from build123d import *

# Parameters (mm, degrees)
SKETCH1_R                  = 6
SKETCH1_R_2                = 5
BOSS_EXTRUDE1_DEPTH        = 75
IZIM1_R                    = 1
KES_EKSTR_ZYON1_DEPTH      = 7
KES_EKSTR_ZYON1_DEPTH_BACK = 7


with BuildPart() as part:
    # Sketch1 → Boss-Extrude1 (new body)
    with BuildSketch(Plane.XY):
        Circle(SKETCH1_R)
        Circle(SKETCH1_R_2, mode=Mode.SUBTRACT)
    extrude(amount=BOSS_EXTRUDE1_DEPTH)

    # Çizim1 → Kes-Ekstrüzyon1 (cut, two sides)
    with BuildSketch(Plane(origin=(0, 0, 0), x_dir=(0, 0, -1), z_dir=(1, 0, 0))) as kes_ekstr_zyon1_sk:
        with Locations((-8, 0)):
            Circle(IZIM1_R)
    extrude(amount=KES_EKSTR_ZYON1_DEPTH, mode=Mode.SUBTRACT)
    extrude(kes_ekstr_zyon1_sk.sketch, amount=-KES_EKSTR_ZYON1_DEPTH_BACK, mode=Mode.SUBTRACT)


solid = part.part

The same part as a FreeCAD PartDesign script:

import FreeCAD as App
import Part
import Sketcher

doc = App.newDocument("Part")
params = doc.addObject("Spreadsheet::Sheet", "Params")
for row, (alias, value) in enumerate([
    ("sketch1_diameter", "12 mm"),
    ("sketch1_diameter2", "10 mm"),
    ("pad1_length", "75 mm"),
    ("sketch2_diameter", "2 mm"),
], start=1):
    params.set(f"A{row}", alias)
    params.set(f"B{row}", "=" + value)
    params.setAlias(f"B{row}", alias)

body = doc.addObject("PartDesign::Body", "Body")

sketch1 = body.newObject("Sketcher::SketchObject", "Sketch")
sketch1.AttachmentSupport = (doc.getObject("XY_Plane"), [""])
sketch1.MapMode = "FlatFace"
sketch1.addGeometry([
    Part.Circle(App.Vector(0, 0, 0), App.Vector(0, 0, 1), 6),
    Part.Circle(App.Vector(0, 0, 0), App.Vector(0, 0, 1), 5),
], False)
sketch1.addConstraint([
    Sketcher.Constraint("Coincident", 0, 3, -1, 1),
    Sketcher.Constraint("Coincident", 1, 3, -1, 1),
    Sketcher.Constraint("Diameter", 0, 12.0),
    Sketcher.Constraint("Diameter", 1, 10.0),
])
sketch1.setExpression("Constraints[2]", "Params.sketch1_diameter")
sketch1.setExpression("Constraints[3]", "Params.sketch1_diameter2")
pad1 = body.newObject("PartDesign::Pad", "Pad")
pad1.Profile = sketch1
pad1.setExpression("Length", "Params.pad1_length")

sketch2 = body.newObject("Sketcher::SketchObject", "Sketch001")
sketch2.AttachmentSupport = (doc.getObject("YZ_Plane"), [""])
sketch2.MapMode = "FlatFace"
sketch2.addGeometry(Part.Circle(App.Vector(0, 8, 0), App.Vector(0, 0, 1), 1), False)
sketch2.addConstraint([
    Sketcher.Constraint("PointOnObject", 0, 3, -2),
    Sketcher.Constraint("Diameter", 0, 2.0),
    Sketcher.Constraint("DistanceY", -1, 1, 0, 3, 8.0),
])
sketch2.setExpression("Constraints[1]", "Params.sketch2_diameter")
pocket1 = body.newObject("PartDesign::Pocket", "Pocket")
pocket1.Profile = sketch2
pocket1.Type = "ThroughAll"
pocket1.Midplane = True

doc.recompute()
